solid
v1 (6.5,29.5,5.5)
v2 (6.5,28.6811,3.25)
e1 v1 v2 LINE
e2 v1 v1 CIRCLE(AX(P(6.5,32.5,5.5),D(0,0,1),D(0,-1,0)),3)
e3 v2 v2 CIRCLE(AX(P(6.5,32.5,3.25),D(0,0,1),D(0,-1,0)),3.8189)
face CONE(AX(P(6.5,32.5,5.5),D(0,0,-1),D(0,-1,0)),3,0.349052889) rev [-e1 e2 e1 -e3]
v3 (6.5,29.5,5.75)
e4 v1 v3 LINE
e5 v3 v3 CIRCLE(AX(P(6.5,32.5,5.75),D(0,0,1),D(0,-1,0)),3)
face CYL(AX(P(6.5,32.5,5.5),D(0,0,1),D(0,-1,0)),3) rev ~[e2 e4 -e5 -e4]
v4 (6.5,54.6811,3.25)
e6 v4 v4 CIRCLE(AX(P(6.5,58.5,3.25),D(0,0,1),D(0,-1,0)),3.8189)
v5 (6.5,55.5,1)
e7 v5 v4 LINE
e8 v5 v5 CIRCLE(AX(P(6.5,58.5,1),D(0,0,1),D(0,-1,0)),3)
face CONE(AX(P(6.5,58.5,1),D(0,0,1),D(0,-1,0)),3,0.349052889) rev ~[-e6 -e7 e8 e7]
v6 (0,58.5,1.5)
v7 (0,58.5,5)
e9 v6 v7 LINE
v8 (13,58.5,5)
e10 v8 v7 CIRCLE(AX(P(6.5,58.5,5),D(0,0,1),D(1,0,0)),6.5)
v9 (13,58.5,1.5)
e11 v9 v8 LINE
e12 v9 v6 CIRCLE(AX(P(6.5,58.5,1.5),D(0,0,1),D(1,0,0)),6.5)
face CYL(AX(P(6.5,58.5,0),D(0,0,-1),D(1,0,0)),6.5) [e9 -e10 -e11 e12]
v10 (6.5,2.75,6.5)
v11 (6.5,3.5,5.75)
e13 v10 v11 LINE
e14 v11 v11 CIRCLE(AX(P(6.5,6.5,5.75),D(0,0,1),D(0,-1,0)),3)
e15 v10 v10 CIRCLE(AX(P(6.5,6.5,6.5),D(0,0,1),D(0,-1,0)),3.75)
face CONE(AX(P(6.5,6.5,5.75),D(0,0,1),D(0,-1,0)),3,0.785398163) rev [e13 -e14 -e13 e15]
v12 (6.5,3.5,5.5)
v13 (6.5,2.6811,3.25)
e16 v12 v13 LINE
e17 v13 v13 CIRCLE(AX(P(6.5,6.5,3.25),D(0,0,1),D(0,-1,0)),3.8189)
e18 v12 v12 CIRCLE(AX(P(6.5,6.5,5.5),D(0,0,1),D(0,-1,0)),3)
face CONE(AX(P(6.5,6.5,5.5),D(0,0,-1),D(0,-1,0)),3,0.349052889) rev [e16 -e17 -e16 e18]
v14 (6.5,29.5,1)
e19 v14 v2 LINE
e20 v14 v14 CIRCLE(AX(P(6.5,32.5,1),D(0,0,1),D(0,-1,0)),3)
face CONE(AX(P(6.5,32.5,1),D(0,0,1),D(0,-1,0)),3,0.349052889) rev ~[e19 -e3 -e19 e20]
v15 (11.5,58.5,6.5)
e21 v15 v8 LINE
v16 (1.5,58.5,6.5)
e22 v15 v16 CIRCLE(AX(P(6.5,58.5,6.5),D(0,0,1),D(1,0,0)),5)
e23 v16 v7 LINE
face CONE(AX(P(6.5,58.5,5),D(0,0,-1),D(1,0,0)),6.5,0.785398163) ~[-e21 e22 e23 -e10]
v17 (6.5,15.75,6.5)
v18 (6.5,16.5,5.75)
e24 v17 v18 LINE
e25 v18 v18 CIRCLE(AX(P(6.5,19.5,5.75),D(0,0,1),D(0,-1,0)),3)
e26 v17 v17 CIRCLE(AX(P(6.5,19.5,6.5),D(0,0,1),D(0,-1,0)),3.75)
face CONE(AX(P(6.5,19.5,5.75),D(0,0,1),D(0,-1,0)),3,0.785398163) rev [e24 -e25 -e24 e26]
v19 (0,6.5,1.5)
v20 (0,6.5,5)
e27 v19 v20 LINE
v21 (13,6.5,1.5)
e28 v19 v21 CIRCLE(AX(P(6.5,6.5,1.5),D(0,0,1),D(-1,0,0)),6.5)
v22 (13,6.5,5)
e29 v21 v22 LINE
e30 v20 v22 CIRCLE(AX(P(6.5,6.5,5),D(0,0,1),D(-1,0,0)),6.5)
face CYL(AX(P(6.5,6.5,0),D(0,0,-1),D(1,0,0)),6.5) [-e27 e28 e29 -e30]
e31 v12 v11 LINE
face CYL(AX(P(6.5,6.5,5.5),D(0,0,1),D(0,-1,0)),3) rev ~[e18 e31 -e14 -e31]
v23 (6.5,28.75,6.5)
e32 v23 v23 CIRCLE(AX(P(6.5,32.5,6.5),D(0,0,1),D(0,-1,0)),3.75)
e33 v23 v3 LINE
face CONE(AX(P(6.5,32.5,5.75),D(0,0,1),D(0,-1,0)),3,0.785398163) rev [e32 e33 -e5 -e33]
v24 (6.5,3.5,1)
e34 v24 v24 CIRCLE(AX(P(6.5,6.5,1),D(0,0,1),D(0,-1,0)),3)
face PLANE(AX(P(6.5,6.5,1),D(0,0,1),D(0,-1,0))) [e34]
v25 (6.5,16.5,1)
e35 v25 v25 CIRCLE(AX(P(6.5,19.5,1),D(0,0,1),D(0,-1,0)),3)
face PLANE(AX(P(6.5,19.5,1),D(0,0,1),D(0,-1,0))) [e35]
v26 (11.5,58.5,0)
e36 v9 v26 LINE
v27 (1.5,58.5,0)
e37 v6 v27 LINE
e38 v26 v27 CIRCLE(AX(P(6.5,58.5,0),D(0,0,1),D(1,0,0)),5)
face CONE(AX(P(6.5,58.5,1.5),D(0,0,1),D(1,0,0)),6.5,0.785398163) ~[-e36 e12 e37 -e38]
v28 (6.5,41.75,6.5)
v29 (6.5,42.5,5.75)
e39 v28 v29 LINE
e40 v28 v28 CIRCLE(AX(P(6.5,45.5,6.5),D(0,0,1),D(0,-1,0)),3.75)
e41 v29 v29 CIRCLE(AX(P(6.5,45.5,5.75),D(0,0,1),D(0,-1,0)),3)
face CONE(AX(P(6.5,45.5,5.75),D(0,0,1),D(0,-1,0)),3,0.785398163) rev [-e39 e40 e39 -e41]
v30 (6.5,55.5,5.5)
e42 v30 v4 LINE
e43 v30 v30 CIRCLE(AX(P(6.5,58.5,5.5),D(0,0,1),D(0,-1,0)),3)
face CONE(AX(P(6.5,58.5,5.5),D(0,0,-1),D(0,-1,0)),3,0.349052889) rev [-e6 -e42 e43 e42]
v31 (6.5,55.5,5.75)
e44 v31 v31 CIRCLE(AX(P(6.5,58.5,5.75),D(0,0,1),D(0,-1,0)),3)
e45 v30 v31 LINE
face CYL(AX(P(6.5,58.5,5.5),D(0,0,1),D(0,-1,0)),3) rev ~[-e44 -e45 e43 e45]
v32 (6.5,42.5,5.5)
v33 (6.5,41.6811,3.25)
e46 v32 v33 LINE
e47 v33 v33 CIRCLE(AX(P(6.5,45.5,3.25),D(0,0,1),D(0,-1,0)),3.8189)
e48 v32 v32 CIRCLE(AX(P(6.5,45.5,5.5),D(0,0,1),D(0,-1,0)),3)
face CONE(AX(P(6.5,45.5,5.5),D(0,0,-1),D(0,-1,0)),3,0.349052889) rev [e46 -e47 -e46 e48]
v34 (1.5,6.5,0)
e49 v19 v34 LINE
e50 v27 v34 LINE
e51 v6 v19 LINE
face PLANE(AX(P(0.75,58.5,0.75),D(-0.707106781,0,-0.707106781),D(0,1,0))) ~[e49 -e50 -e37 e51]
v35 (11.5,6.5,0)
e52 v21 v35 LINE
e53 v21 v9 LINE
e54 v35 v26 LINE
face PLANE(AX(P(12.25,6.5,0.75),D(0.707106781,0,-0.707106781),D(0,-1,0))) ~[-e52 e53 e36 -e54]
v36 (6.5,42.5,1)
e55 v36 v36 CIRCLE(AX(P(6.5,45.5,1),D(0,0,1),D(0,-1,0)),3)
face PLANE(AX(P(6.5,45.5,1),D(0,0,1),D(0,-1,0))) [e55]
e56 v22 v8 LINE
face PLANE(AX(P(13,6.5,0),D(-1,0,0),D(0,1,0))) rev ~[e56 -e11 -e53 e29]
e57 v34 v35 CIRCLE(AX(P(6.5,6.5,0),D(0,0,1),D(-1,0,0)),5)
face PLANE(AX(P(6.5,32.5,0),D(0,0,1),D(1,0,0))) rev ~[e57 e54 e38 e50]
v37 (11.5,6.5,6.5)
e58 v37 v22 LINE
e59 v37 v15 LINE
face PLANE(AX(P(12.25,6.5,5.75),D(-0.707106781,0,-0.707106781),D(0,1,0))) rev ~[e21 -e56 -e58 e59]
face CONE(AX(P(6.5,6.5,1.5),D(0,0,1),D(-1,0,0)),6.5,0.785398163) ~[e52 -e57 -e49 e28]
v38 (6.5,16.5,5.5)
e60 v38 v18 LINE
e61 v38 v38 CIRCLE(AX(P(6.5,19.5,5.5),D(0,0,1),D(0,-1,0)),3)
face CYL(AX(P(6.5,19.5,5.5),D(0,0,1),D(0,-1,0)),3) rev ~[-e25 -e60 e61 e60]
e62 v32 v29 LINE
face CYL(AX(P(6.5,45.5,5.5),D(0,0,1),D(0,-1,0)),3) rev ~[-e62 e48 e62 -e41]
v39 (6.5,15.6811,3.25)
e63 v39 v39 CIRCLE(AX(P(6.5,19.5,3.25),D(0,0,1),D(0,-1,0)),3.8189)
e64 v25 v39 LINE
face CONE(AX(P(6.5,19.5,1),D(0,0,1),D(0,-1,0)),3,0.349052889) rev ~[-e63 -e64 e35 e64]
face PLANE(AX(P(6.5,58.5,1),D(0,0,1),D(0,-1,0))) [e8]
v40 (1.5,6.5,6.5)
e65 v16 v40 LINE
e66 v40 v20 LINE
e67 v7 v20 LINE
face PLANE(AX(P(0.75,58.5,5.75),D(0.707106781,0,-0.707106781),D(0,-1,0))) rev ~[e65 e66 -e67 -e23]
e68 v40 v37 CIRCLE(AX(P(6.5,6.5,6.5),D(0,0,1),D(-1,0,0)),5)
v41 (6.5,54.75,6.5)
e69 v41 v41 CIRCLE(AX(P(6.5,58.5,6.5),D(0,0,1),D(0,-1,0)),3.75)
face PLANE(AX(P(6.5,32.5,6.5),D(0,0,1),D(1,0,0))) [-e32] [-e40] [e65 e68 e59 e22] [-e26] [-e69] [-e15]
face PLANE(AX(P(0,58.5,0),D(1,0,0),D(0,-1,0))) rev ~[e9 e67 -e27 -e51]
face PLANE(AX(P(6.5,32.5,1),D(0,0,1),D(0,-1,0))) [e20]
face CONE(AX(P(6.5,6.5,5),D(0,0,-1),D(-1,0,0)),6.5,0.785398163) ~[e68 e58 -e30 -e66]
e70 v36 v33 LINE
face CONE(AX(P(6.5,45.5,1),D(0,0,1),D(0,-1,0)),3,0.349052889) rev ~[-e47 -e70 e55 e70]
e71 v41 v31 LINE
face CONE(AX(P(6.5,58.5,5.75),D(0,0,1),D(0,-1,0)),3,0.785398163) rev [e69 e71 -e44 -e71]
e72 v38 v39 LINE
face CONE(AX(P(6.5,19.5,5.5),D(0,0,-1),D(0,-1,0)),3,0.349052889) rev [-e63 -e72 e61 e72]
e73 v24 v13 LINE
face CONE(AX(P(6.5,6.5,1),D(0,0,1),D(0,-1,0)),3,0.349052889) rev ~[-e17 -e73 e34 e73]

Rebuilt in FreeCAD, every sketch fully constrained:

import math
import FreeCAD as App
import Part
import Sketcher
from FreeCAD import Vector
Q = App.Units.Quantity


def edges_at(feature, points):
    """Names of the edges that pass closest to the given points."""
    edges = feature.Shape.Edges
    near = lambda p: min(range(len(edges)), key=lambda i: edges[i].distToShape(Part.Vertex(*p))[0])
    return sorted({f"Edge{near(p) + 1}" for p in points})


def add_polygon(sketch, points):
    """Adds a closed chain of lines whose ends are joined by coincident constraints."""
    first, n = sketch.GeometryCount, len(points)
    for a, b in zip(points, points[1:] + points[:1]):
        sketch.addGeometry(Part.LineSegment(App.Vector(*a, 0), App.Vector(*b, 0)), False)
    for i in range(n):
        sketch.addConstraint(Sketcher.Constraint("Coincident", first + i, 2, first + (i + 1) % n, 1))

doc = App.newDocument("Part")
body = doc.addObject("PartDesign::Body", "Body")

# Sketch on XY plane
sketch1 = body.newObject("Sketcher::SketchObject", "Sketch")
sketch1.AttachmentSupport = (doc.getObject("XY_Plane"), [""])
sketch1.MapMode = "FlatFace"
sketch1.addGeometry([
    Part.ArcOfCircle(Part.Circle(Vector(6, 58, 0), Vector(0, 0, 1), 6), math.radians(0), math.radians(180)),
    Part.LineSegment(Vector(0, 58, 0), Vector(0, 6, 0)),
    Part.ArcOfCircle(Part.Circle(Vector(6, 6, 0), Vector(0, 0, 1), 6), math.radians(180), math.radians(360)),
    Part.LineSegment(Vector(13, 6, 0), Vector(13, 58, 0)),
], False)
sketch1.addConstraint([
    Sketcher.Constraint("Tangent", 0, 2, 1, 1),
    Sketcher.Constraint("Tangent", 1, 2, 2, 1),
    Sketcher.Constraint("Tangent", 2, 2, 3, 1),
    Sketcher.Constraint("Tangent", 3, 2, 0, 1),
    Sketcher.Constraint("Vertical", 1),
    Sketcher.Constraint("Vertical", 3),
    Sketcher.Constraint("PointOnObject", 0, 2, -2),
    Sketcher.Constraint("Radius", 0, Q("6.5 mm")),
    Sketcher.Constraint("DistanceY", 1, 2, 1, 1, Q("52 mm")),
    Sketcher.Constraint("DistanceY", -1, 1, 0, 3, Q("58.5 mm")),
])
pad1 = body.newObject("PartDesign::Pad", "Pad")
pad1.Profile = sketch1
pad1.Length = 6.5

# Sketch on YZ plane
sketch2 = body.newObject("Sketcher::SketchObject", "Sketch001")
sketch2.AttachmentSupport = (doc.getObject("YZ_Plane"), [""])
sketch2.MapMode = "FlatFace"
sketch2.AttachmentOffset = App.Placement(Vector(0, 0, 6.5), App.Rotation())
add_polygon(sketch2, [(3.5, 6.5), (3.5, 5.5), (2.7, 3.2), (3.5, 1), (6.5, 1), (6.5, 6.5)])  # lines 0-5
sketch2.addGeometry(Part.LineSegment(Vector(6.5, 1, 0), Vector(6.5, 6.5, 0)), True)  # axis
sketch2.addConstraint([
    Sketcher.Constraint("Vertical", 0),
    Sketcher.Constraint("Horizontal", 3),
    Sketcher.Constraint("Vertical", 4),
    Sketcher.Constraint("Horizontal", 5),
    Sketcher.Constraint("Vertical", 6),
    Sketcher.Constraint("Coincident", 6, 1, 3, 2),
    Sketcher.Constraint("Horizontal", 5, 2, 6, 2),
    Sketcher.Constraint("Vertical", 0, 2, 2, 2),
    Sketcher.Constraint("Equal", 1, 2),
    Sketcher.Constraint("DistanceX", 3, 1, 3, 2, Q("3 mm")),
    Sketcher.Constraint("DistanceY", 0, 2, 0, 1, Q("1 mm")),
    Sketcher.Constraint("Angle", 1, Q("-109.9993 deg")),
    Sketcher.Constraint("DistanceY", 4, 1, 4, 2, Q("5.5 mm")),
    Sketcher.Constraint("DistanceY", -1, 1, 2, 2, Q("1 mm")),
    Sketcher.Constraint("DistanceX", -1, 1, 0, 2, Q("3.5 mm")),
])
groove = body.newObject("PartDesign::Groove", "Groove")
groove.Profile = sketch2
groove.ReferenceAxis = (sketch2, ["Axis0"])
groove.Angle = 360
doc.recompute()

chamfer = body.newObject("PartDesign::Chamfer", "Chamfer")
chamfer.Base = (groove, edges_at(groove, [(6.5, 3.5, 6.5)]))
chamfer.Size = 0.75
doc.recompute()

linearpattern = body.newObject("PartDesign::LinearPattern", "LinearPattern")
linearpattern.Originals = [groove, chamfer]
linearpattern.Direction = (doc.getObject("Y_Axis"), [""])
linearpattern.Mode = "offset"
linearpattern.Offset = 13
linearpattern.Occurrences = 5
body.Tip = linearpattern
doc.recompute()

chamfer2 = body.newObject("PartDesign::Chamfer", "Chamfer001")
chamfer2.Base = (linearpattern, edges_at(linearpattern, [
    (13, 32.5, 6.5),
    (6.5, 0, 6.5),
    (0, 32.5, 6.5),
    (6.5, 65, 6.5),
    (13, 32.5, 0),
    (6.5, 0, 0),
    (0, 32.5, 0),
    (6.5, 65, 0),
]))
chamfer2.Size = 1.5

doc.recompute()
